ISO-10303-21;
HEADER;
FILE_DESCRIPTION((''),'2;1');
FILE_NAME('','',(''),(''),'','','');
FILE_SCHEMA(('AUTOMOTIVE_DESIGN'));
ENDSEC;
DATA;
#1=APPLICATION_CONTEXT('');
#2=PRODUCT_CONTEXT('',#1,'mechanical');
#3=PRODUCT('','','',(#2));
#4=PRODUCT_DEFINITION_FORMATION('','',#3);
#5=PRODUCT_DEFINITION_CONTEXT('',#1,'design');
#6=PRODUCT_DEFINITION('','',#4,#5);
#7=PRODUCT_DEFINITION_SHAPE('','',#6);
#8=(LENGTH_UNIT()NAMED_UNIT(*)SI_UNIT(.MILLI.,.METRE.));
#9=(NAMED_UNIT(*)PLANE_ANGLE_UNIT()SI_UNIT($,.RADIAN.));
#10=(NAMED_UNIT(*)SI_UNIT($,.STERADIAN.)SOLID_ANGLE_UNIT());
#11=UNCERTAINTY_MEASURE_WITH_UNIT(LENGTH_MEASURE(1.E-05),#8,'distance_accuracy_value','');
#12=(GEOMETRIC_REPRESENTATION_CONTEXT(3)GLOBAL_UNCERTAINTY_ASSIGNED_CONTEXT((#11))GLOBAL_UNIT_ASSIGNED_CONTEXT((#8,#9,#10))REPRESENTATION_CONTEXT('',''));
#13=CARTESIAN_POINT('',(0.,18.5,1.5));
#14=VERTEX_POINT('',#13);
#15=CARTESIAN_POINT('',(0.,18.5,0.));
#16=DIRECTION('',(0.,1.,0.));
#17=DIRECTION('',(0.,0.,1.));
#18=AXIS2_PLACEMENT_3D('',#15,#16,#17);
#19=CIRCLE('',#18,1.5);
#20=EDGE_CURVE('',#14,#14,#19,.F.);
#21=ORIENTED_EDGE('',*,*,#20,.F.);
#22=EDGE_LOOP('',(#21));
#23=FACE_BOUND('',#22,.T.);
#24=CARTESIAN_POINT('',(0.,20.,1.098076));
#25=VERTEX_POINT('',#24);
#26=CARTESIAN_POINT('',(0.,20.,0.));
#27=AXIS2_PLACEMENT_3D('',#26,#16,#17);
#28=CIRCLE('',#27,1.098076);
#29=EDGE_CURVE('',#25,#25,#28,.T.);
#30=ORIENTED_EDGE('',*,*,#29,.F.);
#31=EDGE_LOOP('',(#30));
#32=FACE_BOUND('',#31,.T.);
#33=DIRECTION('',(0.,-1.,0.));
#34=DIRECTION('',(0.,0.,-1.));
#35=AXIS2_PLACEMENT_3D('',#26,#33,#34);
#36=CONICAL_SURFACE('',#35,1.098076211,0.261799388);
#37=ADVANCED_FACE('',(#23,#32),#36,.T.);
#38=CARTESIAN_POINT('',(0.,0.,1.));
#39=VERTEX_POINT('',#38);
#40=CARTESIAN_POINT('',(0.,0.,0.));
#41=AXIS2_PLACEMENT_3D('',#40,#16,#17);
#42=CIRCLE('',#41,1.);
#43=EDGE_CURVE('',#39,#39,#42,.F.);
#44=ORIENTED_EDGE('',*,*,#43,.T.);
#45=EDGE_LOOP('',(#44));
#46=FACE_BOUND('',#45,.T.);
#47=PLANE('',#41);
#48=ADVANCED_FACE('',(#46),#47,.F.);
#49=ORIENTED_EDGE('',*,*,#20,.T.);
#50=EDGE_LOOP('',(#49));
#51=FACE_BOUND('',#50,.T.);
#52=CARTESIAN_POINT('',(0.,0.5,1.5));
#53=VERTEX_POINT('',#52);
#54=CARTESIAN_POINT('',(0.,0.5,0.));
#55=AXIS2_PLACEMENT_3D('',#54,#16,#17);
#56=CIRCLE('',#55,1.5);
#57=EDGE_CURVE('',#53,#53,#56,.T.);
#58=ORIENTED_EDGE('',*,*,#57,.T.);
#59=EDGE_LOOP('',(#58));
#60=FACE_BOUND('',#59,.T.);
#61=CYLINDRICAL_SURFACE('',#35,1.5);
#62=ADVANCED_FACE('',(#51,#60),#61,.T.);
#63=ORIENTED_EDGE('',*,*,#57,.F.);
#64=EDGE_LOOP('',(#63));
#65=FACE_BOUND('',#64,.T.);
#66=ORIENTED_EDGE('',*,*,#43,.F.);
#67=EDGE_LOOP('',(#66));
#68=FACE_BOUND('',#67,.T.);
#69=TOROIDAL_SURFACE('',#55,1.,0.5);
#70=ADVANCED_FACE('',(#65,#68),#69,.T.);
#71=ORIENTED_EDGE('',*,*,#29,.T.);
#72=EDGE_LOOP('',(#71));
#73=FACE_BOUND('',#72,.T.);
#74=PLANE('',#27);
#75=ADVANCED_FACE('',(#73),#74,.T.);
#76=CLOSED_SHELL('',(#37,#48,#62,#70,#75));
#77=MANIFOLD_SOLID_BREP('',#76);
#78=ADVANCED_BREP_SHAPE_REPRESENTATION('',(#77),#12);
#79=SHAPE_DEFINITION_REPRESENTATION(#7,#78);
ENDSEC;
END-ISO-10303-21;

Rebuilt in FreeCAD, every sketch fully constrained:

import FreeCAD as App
import Part
import Sketcher

V = App.Vector


def edges_at(feature, points):
    """Names of the edges that pass closest to the given points."""
    edges = feature.Shape.Edges
    near = lambda p: min(range(len(edges)), key=lambda i: edges[i].distToShape(Part.Vertex(*p))[0])
    return sorted({f"Edge{near(p) + 1}" for p in points})

doc = App.newDocument("Part")
body = doc.addObject("PartDesign::Body", "Body")

sketch1 = body.newObject("Sketcher::SketchObject", "Sketch")
sketch1.AttachmentSupport = (doc.getObject("XZ_Plane"), [""])
sketch1.MapMode = "FlatFace"
sketch1.addGeometry(Part.Circle(V(0, 0, 0), V(0, 0, 1), 1.5), False)
sketch1.addConstraint(Sketcher.Constraint("Coincident", 0, 3, -1, 1))
sketch1.addConstraint(Sketcher.Constraint("Diameter", 0, 3.0))
pad1 = body.newObject("PartDesign::Pad", "Pad")
pad1.Profile = sketch1
pad1.Length = 20
pad1.Reversed = True
doc.recompute()

chamfer = body.newObject("PartDesign::Chamfer", "Chamfer")
chamfer.Base = (pad1, edges_at(pad1, [(0, 20, -1.5)]))
chamfer.ChamferType = "Two distances"
chamfer.Size = 1.5
chamfer.Size2 = 0.401924
doc.recompute()

fillet = body.newObject("PartDesign::Fillet", "Fillet")
fillet.Base = (chamfer, edges_at(chamfer, [(0, 0, -1.5)]))
fillet.Radius = 0.5

doc.recompute()
